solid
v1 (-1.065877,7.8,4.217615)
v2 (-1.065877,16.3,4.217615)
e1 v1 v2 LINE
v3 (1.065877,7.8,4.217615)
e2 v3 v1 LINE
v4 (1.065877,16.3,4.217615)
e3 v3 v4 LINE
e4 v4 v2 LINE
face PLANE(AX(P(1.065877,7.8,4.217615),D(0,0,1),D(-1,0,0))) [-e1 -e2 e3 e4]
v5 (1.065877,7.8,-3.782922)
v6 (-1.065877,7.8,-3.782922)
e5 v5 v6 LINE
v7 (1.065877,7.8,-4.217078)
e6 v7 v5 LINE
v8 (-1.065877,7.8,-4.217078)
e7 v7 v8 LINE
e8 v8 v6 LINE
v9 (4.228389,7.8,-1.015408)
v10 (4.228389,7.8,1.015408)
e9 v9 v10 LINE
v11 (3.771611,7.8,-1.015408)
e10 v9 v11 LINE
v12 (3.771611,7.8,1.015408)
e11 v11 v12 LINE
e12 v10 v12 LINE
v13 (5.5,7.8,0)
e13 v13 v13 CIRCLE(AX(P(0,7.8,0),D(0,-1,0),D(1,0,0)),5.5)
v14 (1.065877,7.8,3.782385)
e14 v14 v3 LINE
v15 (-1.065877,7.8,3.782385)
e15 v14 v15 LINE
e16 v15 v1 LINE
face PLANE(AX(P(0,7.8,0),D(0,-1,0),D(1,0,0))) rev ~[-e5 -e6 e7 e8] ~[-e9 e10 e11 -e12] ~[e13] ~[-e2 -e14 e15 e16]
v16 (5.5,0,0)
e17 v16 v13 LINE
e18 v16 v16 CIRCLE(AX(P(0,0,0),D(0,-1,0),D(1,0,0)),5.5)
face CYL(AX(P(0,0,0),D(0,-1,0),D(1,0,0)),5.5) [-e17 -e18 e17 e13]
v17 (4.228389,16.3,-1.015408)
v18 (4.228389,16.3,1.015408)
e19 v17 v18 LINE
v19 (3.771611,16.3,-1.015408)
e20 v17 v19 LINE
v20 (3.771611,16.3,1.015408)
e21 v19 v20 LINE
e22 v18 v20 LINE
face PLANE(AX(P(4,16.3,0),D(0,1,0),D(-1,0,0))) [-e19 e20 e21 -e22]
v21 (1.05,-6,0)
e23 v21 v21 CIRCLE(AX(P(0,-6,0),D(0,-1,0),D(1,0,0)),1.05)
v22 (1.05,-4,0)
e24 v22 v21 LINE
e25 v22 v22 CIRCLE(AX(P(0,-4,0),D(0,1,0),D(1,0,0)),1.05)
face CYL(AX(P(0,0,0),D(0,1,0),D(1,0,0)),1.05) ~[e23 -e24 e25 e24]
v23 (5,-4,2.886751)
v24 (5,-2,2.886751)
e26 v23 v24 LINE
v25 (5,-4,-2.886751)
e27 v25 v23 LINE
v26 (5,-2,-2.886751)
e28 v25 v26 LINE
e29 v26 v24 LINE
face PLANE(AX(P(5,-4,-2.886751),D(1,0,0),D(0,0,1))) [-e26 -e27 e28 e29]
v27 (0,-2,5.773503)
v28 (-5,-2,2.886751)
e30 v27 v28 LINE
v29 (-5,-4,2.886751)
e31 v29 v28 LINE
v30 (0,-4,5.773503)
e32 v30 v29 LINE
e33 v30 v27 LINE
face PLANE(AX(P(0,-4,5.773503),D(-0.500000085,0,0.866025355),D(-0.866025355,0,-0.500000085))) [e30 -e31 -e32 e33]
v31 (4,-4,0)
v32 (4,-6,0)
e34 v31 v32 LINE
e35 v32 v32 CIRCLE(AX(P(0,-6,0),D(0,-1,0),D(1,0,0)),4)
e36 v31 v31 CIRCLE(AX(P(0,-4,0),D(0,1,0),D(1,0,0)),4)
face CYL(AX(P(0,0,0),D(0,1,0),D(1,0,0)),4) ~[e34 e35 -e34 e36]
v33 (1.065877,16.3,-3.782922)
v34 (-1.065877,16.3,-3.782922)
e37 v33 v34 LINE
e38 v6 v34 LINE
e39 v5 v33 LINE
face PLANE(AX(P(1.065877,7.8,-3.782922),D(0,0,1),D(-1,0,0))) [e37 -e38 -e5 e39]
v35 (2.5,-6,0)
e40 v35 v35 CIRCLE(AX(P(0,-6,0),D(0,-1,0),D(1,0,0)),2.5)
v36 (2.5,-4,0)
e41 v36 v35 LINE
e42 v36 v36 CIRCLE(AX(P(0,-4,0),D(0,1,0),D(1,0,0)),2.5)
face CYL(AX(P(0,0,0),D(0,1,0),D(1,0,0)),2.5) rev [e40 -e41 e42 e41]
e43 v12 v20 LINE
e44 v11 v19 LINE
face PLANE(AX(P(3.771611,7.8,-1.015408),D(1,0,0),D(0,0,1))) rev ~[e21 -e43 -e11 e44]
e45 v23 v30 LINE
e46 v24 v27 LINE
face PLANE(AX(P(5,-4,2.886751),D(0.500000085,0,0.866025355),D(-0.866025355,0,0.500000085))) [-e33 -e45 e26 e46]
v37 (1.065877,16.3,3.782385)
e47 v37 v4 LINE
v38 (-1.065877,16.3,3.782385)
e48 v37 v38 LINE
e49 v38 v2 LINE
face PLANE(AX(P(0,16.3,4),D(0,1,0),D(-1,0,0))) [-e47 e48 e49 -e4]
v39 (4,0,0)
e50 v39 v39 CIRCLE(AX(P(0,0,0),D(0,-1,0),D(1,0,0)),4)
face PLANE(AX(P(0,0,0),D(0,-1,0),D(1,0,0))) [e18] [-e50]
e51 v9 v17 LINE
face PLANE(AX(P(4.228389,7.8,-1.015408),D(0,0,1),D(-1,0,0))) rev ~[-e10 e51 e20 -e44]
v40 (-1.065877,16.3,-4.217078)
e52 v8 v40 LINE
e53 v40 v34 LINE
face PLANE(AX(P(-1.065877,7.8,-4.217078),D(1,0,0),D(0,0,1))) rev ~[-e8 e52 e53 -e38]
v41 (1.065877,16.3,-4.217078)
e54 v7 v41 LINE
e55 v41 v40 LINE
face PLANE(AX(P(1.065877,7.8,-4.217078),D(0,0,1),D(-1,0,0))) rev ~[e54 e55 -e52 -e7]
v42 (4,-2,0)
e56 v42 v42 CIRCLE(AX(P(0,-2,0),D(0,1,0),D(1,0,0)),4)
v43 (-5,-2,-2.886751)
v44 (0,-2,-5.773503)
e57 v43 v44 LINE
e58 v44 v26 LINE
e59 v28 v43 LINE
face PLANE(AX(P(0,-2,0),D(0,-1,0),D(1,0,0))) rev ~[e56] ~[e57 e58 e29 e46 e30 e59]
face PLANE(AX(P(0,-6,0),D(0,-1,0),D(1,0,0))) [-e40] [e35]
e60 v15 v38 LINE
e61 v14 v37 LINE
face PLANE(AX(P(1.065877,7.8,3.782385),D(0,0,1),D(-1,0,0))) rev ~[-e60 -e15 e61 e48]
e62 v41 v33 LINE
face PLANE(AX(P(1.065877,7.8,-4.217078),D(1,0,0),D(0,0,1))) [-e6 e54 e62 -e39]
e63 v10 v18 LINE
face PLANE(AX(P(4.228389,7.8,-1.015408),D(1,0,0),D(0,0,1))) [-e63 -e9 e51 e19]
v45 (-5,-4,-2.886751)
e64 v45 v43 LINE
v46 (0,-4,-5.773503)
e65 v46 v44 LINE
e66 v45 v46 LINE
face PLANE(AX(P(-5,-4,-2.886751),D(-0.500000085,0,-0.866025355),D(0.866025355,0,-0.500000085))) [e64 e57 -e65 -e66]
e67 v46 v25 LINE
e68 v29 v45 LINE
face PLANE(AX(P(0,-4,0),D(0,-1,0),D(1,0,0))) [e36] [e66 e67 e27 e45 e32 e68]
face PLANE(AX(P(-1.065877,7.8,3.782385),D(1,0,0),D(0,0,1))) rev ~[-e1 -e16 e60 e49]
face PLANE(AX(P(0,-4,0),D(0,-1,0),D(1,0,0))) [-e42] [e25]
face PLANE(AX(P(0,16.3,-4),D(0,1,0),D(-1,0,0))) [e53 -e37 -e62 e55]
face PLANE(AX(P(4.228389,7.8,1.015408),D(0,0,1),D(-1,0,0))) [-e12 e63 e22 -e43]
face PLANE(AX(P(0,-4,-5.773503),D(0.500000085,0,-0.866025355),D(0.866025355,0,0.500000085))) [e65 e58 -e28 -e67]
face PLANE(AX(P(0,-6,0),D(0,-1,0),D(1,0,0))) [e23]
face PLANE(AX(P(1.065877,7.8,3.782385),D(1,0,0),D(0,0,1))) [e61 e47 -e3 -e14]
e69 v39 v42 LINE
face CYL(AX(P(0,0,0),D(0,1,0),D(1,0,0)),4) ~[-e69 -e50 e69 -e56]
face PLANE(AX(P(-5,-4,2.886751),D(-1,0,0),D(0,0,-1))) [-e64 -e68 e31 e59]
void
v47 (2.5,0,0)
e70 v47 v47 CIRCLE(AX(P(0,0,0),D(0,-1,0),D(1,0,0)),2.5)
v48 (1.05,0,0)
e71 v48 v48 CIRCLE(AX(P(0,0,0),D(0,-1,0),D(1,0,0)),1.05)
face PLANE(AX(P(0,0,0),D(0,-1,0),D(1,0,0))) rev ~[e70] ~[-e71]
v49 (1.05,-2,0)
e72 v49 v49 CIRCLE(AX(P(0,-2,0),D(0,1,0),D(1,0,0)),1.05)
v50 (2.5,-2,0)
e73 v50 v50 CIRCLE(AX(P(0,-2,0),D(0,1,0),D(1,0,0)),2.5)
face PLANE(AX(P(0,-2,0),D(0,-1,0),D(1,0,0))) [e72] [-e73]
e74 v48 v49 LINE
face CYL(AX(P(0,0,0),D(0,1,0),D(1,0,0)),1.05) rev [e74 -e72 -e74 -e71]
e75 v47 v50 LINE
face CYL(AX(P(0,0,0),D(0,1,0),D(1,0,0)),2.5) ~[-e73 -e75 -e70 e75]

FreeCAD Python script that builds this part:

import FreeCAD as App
import Part
import Sketcher
Q = App.Units.Quantity


def add_polygon(sketch, points):
    """Adds a closed chain of lines whose ends are joined by coincident constraints."""
    first, n = sketch.GeometryCount, len(points)
    for a, b in zip(points, points[1:] + points[:1]):
        sketch.addGeometry(Part.LineSegment(App.Vector(*a, 0), App.Vector(*b, 0)), False)
    for i in range(n):
        sketch.addConstraint(Sketcher.Constraint("Coincident", first + i, 2, first + (i + 1) % n, 1))

doc = App.newDocument("Part")
body = doc.addObject("PartDesign::Body", "Body")

# Sketch on XZ plane
sketch1 = doc.addObject("Sketcher::SketchObject", "Sketch")
body.addObject(sketch1)
sketch1.AttachmentSupport = (doc.XZ_Plane, [""])
sketch1.MapMode = "FlatFace"
sketch1.addGeometry(Part.Circle(App.Vector(0, 0, 0), App.Vector(0, 0, 1), 6), False)
sketch1.addConstraint(Sketcher.Constraint("Coincident", 0, 3, -1, 1))
sketch1.addConstraint(Sketcher.Constraint("Diameter", 0, Q("11 mm")))
pad1 = doc.addObject("PartDesign::Pad", "Pad")
body.addObject(pad1)
pad1.Profile = sketch1
pad1.Length = 7.8
pad1.Reversed = True

# Sketch on XZ plane
sketch2 = doc.addObject("Sketcher::SketchObject", "Sketch001")
body.addObject(sketch2)
sketch2.AttachmentSupport = (doc.XZ_Plane, [""])
sketch2.MapMode = "FlatFace"
sketch2.addGeometry(Part.Circle(App.Vector(0, 0, 0), App.Vector(0, 0, 1), 4), False)
sketch2.addGeometry(Part.Circle(App.Vector(0, 0, 0), App.Vector(0, 0, 1), 2.5), False)
sketch2.addGeometry(Part.Circle(App.Vector(0, 0, 0), App.Vector(0, 0, 1), 1.1), False)
sketch2.addConstraint(Sketcher.Constraint("Coincident", 0, 3, -1, 1))
sketch2.addConstraint(Sketcher.Constraint("Coincident", 1, 3, -1, 1))
sketch2.addConstraint(Sketcher.Constraint("Coincident", 2, 3, -1, 1))
sketch2.addConstraint(Sketcher.Constraint("Diameter", 0, Q("8 mm")))
sketch2.addConstraint(Sketcher.Constraint("Diameter", 1, Q("5 mm")))
sketch2.addConstraint(Sketcher.Constraint("Diameter", 2, Q("2.1 mm")))
pad2 = doc.addObject("PartDesign::Pad", "Pad001")
body.addObject(pad2)
pad2.Profile = sketch2
pad2.Length = 6

# Sketch on XZ plane
sketch3 = doc.addObject("Sketcher::SketchObject", "Sketch002")
body.addObject(sketch3)
sketch3.AttachmentSupport = (doc.XZ_Plane, [""])
sketch3.MapMode = "FlatFace"
sketch3.AttachmentOffset = App.Placement(App.Vector(0, 0, 4), App.Rotation())
add_polygon(sketch3, [(5, -3), (5, 3), (0, 6), (-5, 3), (-5, -3), (0, -6)])  # lines 0-5
sketch3.addConstraint(Sketcher.Constraint("Vertical", 0))
sketch3.addConstraint(Sketcher.Constraint("Vertical", 3))
sketch3.addConstraint(Sketcher.Constraint("Symmetric", 0, 2, 3, 2, -1, 1))
sketch3.addConstraint(Sketcher.Constraint("Symmetric", 1, 2, 4, 2, -1, 1))
sketch3.addConstraint(Sketcher.Constraint("PointOnObject", 1, 2, -2))
sketch3.addConstraint(Sketcher.Constraint("Parallel", 2, 5))
sketch3.addConstraint(Sketcher.Constraint("Horizontal", 0, 2, 2, 2))
sketch3.addConstraint(Sketcher.Constraint("Angle", 1, Q("149.999994 deg")))
sketch3.addConstraint(Sketcher.Constraint("DistanceX", -1, 1, 0, 2, Q("5 mm")))
sketch3.addConstraint(Sketcher.Constraint("DistanceY", 0, 1, 0, 2, Q("5.773502 mm")))
pad3 = doc.addObject("PartDesign::Pad", "Pad002")
body.addObject(pad3)
pad3.Profile = sketch3
pad3.Length = 2
pad3.Reversed = True

# Sketch on XZ plane
sketch4 = doc.addObject("Sketcher::SketchObject", "Sketch003")
body.addObject(sketch4)
sketch4.AttachmentSupport = (doc.XZ_Plane, [""])
sketch4.MapMode = "FlatFace"
sketch4.AttachmentOffset = App.Placement(App.Vector(0, 0, -7.8), App.Rotation())
add_polygon(sketch4, [(4.23, 1.02), (4.23, -1.02), (3.77, -1.02), (3.77, 1.02)])  # lines 0-3
add_polygon(sketch4, [(1.07, 4.22), (1.07, 3.78), (-1.07, 3.78), (-1.07, 4.22)])  # lines 4-7
add_polygon(sketch4, [(1.07, -3.78), (1.07, -4.22), (-1.07, -4.22), (-1.07, -3.78)])  # lines 8-11
sketch4.addConstraint(Sketcher.Constraint("Vertical", 0))
sketch4.addConstraint(Sketcher.Constraint("Horizontal", 1))
sketch4.addConstraint(Sketcher.Constraint("Vertical", 2))
sketch4.addConstraint(Sketcher.Constraint("Horizontal", 3))
sketch4.addConstraint(Sketcher.Constraint("Vertical", 4))
sketch4.addConstraint(Sketcher.Constraint("Horizontal", 5))
sketch4.addConstraint(Sketcher.Constraint("Vertical", 6))
sketch4.addConstraint(Sketcher.Constraint("Horizontal", 7))
sketch4.addConstraint(Sketcher.Constraint("Vertical", 8))
sketch4.addConstraint(Sketcher.Constraint("Horizontal", 9))
sketch4.addConstraint(Sketcher.Constraint("Vertical", 10))
sketch4.addConstraint(Sketcher.Constraint("Horizontal", 11))
sketch4.addConstraint(Sketcher.Constraint("Vertical", 7, 2, 8, 2))
sketch4.addConstraint(Sketcher.Constraint("Vertical", 6, 2, 9, 2))
sketch4.addConstraint(Sketcher.Constraint("DistanceY", 4, 2, 4, 1, Q("0.43523 mm")))
sketch4.addConstraint(Sketcher.Constraint("DistanceX", 1, 2, 1, 1, Q("0.456778 mm")))
sketch4.addConstraint(Sketcher.Constraint("DistanceX", 5, 2, 5, 1, Q("2.131754 mm")))
sketch4.addConstraint(Sketcher.Constraint("DistanceY", 0, 2, 0, 1, Q("2.030816 mm")))
sketch4.addConstraint(Sketcher.Constraint("DistanceY", 8, 2, 8, 1, Q("0.434156 mm")))
sketch4.addConstraint(Sketcher.Constraint("DistanceX", -1, 1, 0, 2, Q("4.228389 mm")))
sketch4.addConstraint(Sketcher.Constraint("DistanceY", 0, 2, -1, 1, Q("1.015408 mm")))
sketch4.addConstraint(Sketcher.Constraint("DistanceX", 4, 2, 3, 2, Q("3.162512 mm")))
sketch4.addConstraint(Sketcher.Constraint("DistanceY", 8, 2, 1, 2, Q("3.20167 mm")))
sketch4.addConstraint(Sketcher.Constraint("DistanceY", -1, 1, 4, 2, Q("3.782385 mm")))
pad4 = doc.addObject("PartDesign::Pad", "Pad003")
body.addObject(pad4)
pad4.Profile = sketch4
pad4.Length = 8.5
pad4.Reversed = True

doc.recompute()
